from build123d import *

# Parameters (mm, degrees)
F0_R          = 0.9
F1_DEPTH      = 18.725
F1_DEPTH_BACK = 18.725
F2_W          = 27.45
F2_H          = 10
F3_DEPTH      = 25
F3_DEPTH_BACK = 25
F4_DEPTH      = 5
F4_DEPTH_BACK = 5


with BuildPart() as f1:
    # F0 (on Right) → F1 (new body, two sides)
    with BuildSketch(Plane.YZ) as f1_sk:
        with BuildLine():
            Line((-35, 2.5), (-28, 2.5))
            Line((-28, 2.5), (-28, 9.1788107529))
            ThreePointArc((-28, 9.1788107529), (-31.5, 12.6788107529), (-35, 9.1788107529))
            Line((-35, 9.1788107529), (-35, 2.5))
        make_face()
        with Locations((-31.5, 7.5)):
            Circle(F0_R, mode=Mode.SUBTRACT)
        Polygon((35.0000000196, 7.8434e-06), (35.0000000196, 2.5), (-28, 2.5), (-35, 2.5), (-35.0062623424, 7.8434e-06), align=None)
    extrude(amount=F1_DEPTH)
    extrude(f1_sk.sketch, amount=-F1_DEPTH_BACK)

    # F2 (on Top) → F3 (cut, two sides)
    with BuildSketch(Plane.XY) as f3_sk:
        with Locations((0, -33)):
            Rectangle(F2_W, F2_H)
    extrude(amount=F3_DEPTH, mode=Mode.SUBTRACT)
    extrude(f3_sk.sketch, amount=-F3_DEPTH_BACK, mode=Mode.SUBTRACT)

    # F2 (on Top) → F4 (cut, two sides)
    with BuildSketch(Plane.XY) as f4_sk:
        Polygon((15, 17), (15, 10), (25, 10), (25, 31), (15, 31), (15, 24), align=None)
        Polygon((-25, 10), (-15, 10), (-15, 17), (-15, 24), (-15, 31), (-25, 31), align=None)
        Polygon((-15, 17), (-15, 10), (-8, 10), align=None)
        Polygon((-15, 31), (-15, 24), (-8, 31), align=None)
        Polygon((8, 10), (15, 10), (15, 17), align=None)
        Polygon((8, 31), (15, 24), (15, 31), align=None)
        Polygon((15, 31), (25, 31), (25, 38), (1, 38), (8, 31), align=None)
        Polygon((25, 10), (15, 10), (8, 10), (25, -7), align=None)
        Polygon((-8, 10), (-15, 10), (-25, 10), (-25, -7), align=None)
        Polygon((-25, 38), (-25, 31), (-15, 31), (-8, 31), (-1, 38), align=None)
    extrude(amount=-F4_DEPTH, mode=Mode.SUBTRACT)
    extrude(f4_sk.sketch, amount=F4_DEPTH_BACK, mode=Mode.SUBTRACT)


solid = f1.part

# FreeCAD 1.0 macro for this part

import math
import FreeCAD as App
import Part
import Sketcher
Q = App.Units.Quantity


def add_polygon(sketch, points):
    """Adds a closed chain of lines whose ends are joined by coincident constraints."""
    first, n = sketch.GeometryCount, len(points)
    for a, b in zip(points, points[1:] + points[:1]):
        sketch.addGeometry(Part.LineSegment(App.Vector(*a, 0), App.Vector(*b, 0)), False)
    for i in range(n):
        sketch.addConstraint(Sketcher.Constraint("Coincident", first + i, 2, first + (i + 1) % n, 1))

doc = App.newDocument("Part")
body = doc.addObject("PartDesign::Body", "Body")

sketch1 = doc.addObject("Sketcher::SketchObject", "Sketch")
body.addObject(sketch1)
sketch1.AttachmentSupport = (doc.YZ_Plane, [""])
sketch1.MapMode = "FlatFace"
sketch1.addGeometry([
    Part.LineSegment(App.Vector(-35, 9.2, 0), App.Vector(-35, 2.5, 0)),
    Part.LineSegment(App.Vector(-35, 2.5, 0), App.Vector(-35, 0, 0)),
    Part.LineSegment(App.Vector(-35, 0, 0), App.Vector(35, 0, 0)),
    Part.LineSegment(App.Vector(35, 0, 0), App.Vector(35, 2.5, 0)),
    Part.LineSegment(App.Vector(35, 2.5, 0), App.Vector(-28, 2.5, 0)),
    Part.LineSegment(App.Vector(-28, 2.5, 0), App.Vector(-28, 9.2, 0)),
    Part.ArcOfCircle(Part.Circle(App.Vector(-31.5, 9.2, 0), App.Vector(0, 0, 1), 3.5), math.radians(0), math.radians(180)),
    Part.Circle(App.Vector(-31.5, 7.5, 0), App.Vector(0, 0, 1), 0.9),
], False)
sketch1.addConstraint([
    Sketcher.Constraint("Coincident", 0, 2, 1, 1),
    Sketcher.Constraint("Coincident", 1, 2, 2, 1),
    Sketcher.Constraint("Coincident", 2, 2, 3, 1),
    Sketcher.Constraint("Coincident", 3, 2, 4, 1),
    Sketcher.Constraint("Coincident", 4, 2, 5, 1),
    Sketcher.Constraint("Tangent", 5, 2, 6, 1),
    Sketcher.Constraint("Tangent", 6, 2, 0, 1),
    Sketcher.Constraint("Vertical", 0),
    Sketcher.Constraint("Horizontal", 2),
    Sketcher.Constraint("Vertical", 3),
    Sketcher.Constraint("Horizontal", 4),
    Sketcher.Constraint("Vertical", 5),
    Sketcher.Constraint("Symmetric", 0, 2, 3, 2, -2),
    Sketcher.Constraint("Vertical", 6, 3, 7, 3),
    Sketcher.Constraint("Diameter", 7, Q("1.8 mm")),
    Sketcher.Constraint("Radius", 6, Q("3.5 mm")),
    Sketcher.Constraint("DistanceX", 4, 2, 4, 1, Q("63 mm")),
    Sketcher.Constraint("DistanceY", 0, 2, 7, 3, Q("5 mm")),
    Sketcher.Constraint("Distance", 1, Q("2.5 mm")),
    Sketcher.Constraint("DistanceY", -1, 1, 7, 3, Q("7.5 mm")),
    Sketcher.Constraint("DistanceY", 0, 2, 0, 1, Q("6.678811 mm")),
    Sketcher.Constraint("DistanceX", 2, 1, 2, 2, Q("70.006262 mm")),
])
pad1 = doc.addObject("PartDesign::Pad", "Pad")
body.addObject(pad1)
pad1.Profile = sketch1
pad1.Type = "TwoLengths"
pad1.Length = 18.725
pad1.Length2 = 18.725

sketch2 = doc.addObject("Sketcher::SketchObject", "Sketch001")
body.addObject(sketch2)
sketch2.AttachmentSupport = (doc.XY_Plane, [""])
sketch2.MapMode = "FlatFace"
add_polygon(sketch2, [(-14, -28), (-14, -38), (14, -38), (14, -28)])
sketch2.addConstraint([
    Sketcher.Constraint("Vertical", 0),
    Sketcher.Constraint("Horizontal", 1),
    Sketcher.Constraint("Vertical", 2),
    Sketcher.Constraint("Horizontal", 3),
    Sketcher.Constraint("DistanceY", 0, 2, 0, 1, Q("10 mm")),
    Sketcher.Constraint("DistanceY", 0, 2, -1, 1, Q("38 mm")),
    Sketcher.Constraint("DistanceX", 1, 1, 1, 2, Q("27.45 mm")),
    Sketcher.Constraint("DistanceX", 0, 2, -1, 1, Q("13.725 mm")),
])
pocket1 = doc.addObject("PartDesign::Pocket", "Pocket")
body.addObject(pocket1)
pocket1.Profile = sketch2
pocket1.Type = "ThroughAll"
pocket1.Midplane = True

sketch3 = doc.addObject("Sketcher::SketchObject", "Sketch002")
body.addObject(sketch3)
sketch3.AttachmentSupport = (doc.XY_Plane, [""])
sketch3.MapMode = "FlatFace"
add_polygon(sketch3, [(25, 38), (1, 38), (15, 24), (15, 17), (8, 10), (25, -7)])
add_polygon(sketch3, [(-8, 10), (-15, 17), (-15, 24), (-1, 38), (-25, 38), (-25, -7)])
sketch3.addConstraint([
    Sketcher.Constraint("Horizontal", 0),
    Sketcher.Constraint("Vertical", 2),
    Sketcher.Constraint("Vertical", 5),
    Sketcher.Constraint("Vertical", 7),
    Sketcher.Constraint("Horizontal", 9),
    Sketcher.Constraint("Vertical", 10),
    Sketcher.Constraint("Symmetric", 2, 2, 6, 2, -2),
    Sketcher.Constraint("Symmetric", 0, 2, 8, 2, -2),
    Sketcher.Constraint("Symmetric", 4, 2, 10, 2, -2),
    Sketcher.Constraint("Symmetric", 3, 2, 11, 2, -2),
    Sketcher.Constraint("Perpendicular", 1, 3),
    Sketcher.Constraint("Perpendicular", 3, 4),
    Sketcher.Constraint("Parallel", 4, 6),
    Sketcher.Constraint("Perpendicular", 6, 8),
    Sketcher.Constraint("DistanceX", 0, 2, 0, 1, Q("24 mm")),
    Sketcher.Constraint("DistanceY", 2, 2, 2, 1, Q("7 mm")),
    Sketcher.Constraint("DistanceY", 5, 1, 5, 2, Q("45 mm")),
    Sketcher.Constraint("DistanceX", -1, 1, 0, 2, Q("1 mm")),
    Sketcher.Constraint("DistanceY", -1, 1, 0, 2, Q("38 mm")),
    Sketcher.Constraint("DistanceX", -1, 1, 1, 2, Q("15 mm")),
])
pocket2 = doc.addObject("PartDesign::Pocket", "Pocket001")
body.addObject(pocket2)
pocket2.Profile = sketch3
pocket2.Type = "ThroughAll"
pocket2.Midplane = True

doc.recompute()
